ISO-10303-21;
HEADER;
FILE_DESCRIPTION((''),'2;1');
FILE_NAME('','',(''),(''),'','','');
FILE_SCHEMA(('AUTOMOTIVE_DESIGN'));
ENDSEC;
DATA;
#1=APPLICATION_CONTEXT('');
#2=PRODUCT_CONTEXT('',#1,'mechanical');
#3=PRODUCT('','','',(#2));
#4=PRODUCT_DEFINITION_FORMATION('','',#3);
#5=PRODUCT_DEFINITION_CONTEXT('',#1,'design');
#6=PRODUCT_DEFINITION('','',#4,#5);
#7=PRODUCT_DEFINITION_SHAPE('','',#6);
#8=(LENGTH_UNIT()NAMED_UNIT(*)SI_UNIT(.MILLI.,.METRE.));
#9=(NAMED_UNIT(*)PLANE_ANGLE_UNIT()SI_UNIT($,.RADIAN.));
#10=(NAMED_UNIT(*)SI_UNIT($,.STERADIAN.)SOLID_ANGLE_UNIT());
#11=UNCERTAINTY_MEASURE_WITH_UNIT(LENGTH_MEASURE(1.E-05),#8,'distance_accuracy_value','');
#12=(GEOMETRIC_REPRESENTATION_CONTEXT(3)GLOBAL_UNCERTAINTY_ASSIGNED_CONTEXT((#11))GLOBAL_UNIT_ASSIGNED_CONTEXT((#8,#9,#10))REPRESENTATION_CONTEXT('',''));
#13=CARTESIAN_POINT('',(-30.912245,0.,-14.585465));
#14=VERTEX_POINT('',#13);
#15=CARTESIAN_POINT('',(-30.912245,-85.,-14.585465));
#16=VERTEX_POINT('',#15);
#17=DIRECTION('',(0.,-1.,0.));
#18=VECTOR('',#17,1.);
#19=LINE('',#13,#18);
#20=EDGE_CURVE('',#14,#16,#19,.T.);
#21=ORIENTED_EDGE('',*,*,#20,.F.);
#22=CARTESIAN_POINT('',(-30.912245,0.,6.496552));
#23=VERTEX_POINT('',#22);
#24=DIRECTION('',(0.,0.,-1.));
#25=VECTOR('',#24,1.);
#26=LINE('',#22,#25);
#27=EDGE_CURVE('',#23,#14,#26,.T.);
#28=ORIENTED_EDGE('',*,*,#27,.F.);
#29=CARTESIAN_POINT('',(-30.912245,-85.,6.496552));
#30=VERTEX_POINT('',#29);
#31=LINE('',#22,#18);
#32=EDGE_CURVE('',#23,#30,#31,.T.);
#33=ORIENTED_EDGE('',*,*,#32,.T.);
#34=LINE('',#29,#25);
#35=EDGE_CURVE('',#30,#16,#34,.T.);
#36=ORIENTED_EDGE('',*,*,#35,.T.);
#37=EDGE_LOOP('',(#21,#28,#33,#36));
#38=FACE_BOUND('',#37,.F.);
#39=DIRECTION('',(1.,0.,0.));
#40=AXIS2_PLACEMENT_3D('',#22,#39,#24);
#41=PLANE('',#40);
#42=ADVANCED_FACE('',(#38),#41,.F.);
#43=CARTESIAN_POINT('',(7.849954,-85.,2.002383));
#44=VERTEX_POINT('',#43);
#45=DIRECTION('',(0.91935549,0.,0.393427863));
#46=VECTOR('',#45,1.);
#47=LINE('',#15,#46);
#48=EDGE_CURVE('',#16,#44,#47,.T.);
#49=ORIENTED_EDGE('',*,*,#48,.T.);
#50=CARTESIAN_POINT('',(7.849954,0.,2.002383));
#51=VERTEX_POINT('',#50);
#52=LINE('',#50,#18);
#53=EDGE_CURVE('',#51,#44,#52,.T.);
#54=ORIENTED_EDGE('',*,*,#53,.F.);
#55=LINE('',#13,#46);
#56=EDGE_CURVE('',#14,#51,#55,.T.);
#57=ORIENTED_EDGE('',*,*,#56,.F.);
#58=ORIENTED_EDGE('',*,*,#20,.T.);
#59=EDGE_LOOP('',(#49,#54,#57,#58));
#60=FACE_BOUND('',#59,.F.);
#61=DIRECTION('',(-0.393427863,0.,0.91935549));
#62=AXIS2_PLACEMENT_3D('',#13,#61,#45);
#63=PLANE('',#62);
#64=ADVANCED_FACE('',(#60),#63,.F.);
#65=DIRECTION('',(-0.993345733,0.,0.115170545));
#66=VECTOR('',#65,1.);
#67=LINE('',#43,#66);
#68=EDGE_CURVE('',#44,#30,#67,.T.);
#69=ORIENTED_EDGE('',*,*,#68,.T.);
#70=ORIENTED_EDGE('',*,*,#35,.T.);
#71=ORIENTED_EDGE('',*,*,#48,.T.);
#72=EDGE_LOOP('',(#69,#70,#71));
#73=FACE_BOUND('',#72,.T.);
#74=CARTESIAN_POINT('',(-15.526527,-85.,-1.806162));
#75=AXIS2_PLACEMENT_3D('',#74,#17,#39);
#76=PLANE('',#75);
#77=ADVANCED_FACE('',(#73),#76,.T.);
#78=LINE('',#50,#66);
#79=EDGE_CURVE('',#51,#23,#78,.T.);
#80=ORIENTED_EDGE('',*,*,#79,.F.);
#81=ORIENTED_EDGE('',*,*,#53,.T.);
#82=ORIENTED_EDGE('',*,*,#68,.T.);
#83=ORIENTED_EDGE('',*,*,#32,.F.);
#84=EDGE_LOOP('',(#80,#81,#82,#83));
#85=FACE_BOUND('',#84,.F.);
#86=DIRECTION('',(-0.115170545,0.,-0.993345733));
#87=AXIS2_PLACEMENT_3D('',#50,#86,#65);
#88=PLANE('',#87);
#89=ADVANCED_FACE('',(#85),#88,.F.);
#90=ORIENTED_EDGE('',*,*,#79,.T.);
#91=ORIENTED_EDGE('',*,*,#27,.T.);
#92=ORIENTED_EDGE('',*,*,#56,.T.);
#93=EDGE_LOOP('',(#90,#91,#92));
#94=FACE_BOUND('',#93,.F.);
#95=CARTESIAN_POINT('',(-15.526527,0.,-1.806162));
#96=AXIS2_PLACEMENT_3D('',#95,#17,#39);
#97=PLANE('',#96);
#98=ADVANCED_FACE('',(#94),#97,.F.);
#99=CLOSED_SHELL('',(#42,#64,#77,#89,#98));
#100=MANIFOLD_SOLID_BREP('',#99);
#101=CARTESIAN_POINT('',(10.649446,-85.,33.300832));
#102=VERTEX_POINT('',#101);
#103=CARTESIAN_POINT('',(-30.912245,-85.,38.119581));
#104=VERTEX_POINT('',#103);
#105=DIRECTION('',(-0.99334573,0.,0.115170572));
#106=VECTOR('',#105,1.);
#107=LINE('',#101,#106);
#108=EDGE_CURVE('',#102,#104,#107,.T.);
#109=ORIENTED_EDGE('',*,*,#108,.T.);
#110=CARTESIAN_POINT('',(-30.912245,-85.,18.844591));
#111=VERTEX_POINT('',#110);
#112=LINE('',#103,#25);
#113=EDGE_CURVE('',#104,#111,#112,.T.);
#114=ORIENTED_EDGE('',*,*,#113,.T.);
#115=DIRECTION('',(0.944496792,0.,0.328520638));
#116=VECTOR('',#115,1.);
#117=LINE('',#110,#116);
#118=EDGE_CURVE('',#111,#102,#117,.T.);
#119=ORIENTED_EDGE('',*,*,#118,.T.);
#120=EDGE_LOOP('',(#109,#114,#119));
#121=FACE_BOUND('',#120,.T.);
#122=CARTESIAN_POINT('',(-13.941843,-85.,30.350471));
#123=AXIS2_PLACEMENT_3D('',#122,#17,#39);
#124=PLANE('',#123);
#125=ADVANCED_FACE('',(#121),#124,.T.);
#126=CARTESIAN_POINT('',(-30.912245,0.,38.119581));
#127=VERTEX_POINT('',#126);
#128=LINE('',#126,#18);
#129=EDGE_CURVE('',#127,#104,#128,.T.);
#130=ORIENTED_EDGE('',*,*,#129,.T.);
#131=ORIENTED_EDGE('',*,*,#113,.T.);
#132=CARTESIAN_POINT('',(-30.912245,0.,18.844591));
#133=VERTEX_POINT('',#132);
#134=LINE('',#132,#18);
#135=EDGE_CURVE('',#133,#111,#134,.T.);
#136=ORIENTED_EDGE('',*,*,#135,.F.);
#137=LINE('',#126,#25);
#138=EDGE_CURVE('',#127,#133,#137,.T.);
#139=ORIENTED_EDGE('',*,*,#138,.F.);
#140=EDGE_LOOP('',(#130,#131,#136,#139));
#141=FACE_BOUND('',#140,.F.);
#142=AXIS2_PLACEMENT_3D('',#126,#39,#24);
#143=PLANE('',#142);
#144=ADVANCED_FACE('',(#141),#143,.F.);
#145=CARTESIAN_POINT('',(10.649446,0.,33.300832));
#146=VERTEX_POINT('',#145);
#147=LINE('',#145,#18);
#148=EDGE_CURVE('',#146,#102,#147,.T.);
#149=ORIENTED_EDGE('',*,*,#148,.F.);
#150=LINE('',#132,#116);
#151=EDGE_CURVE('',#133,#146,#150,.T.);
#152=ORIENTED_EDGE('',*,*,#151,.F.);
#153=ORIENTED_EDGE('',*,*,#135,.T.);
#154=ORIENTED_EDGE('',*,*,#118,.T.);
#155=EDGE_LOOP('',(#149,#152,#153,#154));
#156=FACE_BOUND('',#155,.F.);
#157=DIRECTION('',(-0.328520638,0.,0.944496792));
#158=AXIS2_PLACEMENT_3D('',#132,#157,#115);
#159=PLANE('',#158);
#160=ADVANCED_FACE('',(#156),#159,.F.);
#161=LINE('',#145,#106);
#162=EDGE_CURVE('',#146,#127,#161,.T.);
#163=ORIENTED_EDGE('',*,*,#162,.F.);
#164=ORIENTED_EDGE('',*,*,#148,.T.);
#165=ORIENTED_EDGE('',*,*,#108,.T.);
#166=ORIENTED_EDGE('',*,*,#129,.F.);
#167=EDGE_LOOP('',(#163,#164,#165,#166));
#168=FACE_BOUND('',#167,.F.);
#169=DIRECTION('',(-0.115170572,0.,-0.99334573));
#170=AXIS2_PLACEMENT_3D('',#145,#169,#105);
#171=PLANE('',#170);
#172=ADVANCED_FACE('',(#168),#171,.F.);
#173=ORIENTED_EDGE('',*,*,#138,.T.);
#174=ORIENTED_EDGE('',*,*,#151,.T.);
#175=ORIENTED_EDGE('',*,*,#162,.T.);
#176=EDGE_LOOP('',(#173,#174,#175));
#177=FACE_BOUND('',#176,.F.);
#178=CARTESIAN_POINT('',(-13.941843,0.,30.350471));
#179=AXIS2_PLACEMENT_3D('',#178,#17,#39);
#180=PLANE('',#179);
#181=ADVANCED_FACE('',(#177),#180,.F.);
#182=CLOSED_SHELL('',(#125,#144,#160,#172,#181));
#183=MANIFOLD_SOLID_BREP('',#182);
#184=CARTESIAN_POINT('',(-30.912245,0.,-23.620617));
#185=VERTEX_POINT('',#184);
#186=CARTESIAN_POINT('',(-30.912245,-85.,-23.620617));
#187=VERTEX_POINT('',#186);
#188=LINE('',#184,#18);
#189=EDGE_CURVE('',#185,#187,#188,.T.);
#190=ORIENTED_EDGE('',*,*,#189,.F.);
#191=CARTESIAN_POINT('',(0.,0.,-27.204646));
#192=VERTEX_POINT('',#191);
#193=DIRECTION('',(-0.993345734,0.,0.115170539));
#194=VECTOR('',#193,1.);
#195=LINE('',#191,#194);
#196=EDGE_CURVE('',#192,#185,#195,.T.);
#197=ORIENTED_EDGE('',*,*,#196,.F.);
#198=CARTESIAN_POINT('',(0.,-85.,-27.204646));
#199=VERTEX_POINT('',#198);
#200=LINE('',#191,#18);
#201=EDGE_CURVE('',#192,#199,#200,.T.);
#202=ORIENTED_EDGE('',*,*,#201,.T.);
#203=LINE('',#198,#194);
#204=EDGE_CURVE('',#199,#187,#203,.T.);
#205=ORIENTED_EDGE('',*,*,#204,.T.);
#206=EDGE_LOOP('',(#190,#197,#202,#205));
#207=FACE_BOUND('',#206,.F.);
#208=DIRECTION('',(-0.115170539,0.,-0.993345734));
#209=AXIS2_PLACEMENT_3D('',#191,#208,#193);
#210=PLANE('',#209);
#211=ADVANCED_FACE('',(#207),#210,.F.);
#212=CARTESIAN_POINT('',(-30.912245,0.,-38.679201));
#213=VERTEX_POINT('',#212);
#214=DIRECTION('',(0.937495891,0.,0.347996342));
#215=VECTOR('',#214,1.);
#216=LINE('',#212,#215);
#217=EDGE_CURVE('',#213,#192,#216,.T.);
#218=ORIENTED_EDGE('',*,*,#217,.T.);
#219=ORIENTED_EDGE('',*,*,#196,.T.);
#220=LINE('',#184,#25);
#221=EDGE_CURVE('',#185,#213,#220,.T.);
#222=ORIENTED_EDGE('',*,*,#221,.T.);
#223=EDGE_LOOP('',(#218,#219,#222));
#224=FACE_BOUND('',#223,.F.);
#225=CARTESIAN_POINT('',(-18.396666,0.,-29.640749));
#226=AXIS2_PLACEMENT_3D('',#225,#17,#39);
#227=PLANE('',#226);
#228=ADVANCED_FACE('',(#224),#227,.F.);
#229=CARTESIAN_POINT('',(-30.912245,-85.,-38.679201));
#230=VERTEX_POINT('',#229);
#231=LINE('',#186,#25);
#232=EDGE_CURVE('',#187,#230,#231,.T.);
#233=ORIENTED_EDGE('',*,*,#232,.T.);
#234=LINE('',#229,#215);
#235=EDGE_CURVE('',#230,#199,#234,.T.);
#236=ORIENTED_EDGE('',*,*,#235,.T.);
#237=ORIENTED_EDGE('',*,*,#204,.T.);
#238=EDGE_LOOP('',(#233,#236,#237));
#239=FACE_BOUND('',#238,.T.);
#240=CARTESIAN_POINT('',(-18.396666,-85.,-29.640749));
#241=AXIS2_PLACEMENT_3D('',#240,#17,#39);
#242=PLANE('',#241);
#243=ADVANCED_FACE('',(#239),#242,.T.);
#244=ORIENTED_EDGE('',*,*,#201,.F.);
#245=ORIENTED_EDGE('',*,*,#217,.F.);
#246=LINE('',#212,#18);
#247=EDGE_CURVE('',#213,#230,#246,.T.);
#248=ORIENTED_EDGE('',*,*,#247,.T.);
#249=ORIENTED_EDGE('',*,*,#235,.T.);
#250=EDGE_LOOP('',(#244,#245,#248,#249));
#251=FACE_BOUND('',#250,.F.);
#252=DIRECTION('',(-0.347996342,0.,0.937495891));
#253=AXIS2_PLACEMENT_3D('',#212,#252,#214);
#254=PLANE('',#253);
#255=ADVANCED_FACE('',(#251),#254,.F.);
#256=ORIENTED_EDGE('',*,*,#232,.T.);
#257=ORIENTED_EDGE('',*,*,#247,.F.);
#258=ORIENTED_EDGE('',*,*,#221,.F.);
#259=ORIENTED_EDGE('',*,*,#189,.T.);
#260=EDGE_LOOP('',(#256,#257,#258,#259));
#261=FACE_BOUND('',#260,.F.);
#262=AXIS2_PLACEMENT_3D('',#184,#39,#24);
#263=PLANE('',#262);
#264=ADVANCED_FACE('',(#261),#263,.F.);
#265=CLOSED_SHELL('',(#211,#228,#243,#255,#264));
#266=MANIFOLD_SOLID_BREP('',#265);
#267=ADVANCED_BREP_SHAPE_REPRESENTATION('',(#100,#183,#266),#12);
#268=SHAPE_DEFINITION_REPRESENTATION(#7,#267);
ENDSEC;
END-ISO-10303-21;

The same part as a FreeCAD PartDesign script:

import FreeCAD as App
import Part
import Sketcher
from FreeCAD import Vector
Q = App.Units.Quantity


def add_polygon(sketch, points):
    """Adds a closed chain of lines whose ends are joined by coincident constraints."""
    first, n = sketch.GeometryCount, len(points)
    for a, b in zip(points, points[1:] + points[:1]):
        sketch.addGeometry(Part.LineSegment(App.Vector(*a, 0), App.Vector(*b, 0)), False)
    for i in range(n):
        sketch.addConstraint(Sketcher.Constraint("Coincident", first + i, 2, first + (i + 1) % n, 1))

doc = App.newDocument("Part")
body = doc.addObject("PartDesign::Body", "Body")
body.AllowCompound = True

# Sketch on XZ plane
sketch1 = body.newObject("Sketcher::SketchObject", "Sketch")
sketch1.AttachmentSupport = (doc.getObject("XZ_Plane"), [""])
sketch1.MapMode = "FlatFace"
add_polygon(sketch1, [(-31, 38), (-31, 19), (11, 33)])  # lines 0-2
add_polygon(sketch1, [(-31, 6), (-31, -15), (8, 2)])  # lines 3-5
add_polygon(sketch1, [(-31, -24), (-31, -39), (0, -27)])  # lines 6-8
sketch1.addConstraint([
    Sketcher.Constraint("Vertical", 0),
    Sketcher.Constraint("Vertical", 3),
    Sketcher.Constraint("Vertical", 6),
    Sketcher.Constraint("PointOnObject", 7, 2, -2),
    Sketcher.Constraint("Parallel", 2, 5),
    Sketcher.Constraint("Parallel", 5, 8),
    Sketcher.Constraint("Vertical", 2, 2, 3, 2),
    Sketcher.Constraint("Vertical", 5, 2, 6, 2),
    Sketcher.Constraint("DistanceY", 0, 2, 0, 1, Q("19.27499 mm")),
    Sketcher.Constraint("DistanceY", 6, 2, -1, 1, Q("38.679201 mm")),
    Sketcher.Constraint("DistanceX", 3, 2, 4, 2, Q("38.762199 mm")),
    Sketcher.Constraint("Distance", 5, Q("39.021861 mm")),
    Sketcher.Constraint("Distance", 8, Q("31.119321 mm")),
    Sketcher.Constraint("DistanceY", 3, 2, 3, 1, Q("21.082017 mm")),
    Sketcher.Constraint("DistanceY", 6, 2, 6, 1, Q("15.058584 mm")),
    Sketcher.Constraint("DistanceY", -1, 1, 0, 2, Q("18.844591 mm")),
    Sketcher.Constraint("DistanceX", 0, 2, 1, 2, Q("41.561691 mm")),
    Sketcher.Constraint("DistanceY", 4, 2, 1, 2, Q("31.298449 mm")),
])
pad1 = body.newObject("PartDesign::Pad", "Pad")
pad1.Profile = sketch1
pad1.Length = 85

doc.recompute()
